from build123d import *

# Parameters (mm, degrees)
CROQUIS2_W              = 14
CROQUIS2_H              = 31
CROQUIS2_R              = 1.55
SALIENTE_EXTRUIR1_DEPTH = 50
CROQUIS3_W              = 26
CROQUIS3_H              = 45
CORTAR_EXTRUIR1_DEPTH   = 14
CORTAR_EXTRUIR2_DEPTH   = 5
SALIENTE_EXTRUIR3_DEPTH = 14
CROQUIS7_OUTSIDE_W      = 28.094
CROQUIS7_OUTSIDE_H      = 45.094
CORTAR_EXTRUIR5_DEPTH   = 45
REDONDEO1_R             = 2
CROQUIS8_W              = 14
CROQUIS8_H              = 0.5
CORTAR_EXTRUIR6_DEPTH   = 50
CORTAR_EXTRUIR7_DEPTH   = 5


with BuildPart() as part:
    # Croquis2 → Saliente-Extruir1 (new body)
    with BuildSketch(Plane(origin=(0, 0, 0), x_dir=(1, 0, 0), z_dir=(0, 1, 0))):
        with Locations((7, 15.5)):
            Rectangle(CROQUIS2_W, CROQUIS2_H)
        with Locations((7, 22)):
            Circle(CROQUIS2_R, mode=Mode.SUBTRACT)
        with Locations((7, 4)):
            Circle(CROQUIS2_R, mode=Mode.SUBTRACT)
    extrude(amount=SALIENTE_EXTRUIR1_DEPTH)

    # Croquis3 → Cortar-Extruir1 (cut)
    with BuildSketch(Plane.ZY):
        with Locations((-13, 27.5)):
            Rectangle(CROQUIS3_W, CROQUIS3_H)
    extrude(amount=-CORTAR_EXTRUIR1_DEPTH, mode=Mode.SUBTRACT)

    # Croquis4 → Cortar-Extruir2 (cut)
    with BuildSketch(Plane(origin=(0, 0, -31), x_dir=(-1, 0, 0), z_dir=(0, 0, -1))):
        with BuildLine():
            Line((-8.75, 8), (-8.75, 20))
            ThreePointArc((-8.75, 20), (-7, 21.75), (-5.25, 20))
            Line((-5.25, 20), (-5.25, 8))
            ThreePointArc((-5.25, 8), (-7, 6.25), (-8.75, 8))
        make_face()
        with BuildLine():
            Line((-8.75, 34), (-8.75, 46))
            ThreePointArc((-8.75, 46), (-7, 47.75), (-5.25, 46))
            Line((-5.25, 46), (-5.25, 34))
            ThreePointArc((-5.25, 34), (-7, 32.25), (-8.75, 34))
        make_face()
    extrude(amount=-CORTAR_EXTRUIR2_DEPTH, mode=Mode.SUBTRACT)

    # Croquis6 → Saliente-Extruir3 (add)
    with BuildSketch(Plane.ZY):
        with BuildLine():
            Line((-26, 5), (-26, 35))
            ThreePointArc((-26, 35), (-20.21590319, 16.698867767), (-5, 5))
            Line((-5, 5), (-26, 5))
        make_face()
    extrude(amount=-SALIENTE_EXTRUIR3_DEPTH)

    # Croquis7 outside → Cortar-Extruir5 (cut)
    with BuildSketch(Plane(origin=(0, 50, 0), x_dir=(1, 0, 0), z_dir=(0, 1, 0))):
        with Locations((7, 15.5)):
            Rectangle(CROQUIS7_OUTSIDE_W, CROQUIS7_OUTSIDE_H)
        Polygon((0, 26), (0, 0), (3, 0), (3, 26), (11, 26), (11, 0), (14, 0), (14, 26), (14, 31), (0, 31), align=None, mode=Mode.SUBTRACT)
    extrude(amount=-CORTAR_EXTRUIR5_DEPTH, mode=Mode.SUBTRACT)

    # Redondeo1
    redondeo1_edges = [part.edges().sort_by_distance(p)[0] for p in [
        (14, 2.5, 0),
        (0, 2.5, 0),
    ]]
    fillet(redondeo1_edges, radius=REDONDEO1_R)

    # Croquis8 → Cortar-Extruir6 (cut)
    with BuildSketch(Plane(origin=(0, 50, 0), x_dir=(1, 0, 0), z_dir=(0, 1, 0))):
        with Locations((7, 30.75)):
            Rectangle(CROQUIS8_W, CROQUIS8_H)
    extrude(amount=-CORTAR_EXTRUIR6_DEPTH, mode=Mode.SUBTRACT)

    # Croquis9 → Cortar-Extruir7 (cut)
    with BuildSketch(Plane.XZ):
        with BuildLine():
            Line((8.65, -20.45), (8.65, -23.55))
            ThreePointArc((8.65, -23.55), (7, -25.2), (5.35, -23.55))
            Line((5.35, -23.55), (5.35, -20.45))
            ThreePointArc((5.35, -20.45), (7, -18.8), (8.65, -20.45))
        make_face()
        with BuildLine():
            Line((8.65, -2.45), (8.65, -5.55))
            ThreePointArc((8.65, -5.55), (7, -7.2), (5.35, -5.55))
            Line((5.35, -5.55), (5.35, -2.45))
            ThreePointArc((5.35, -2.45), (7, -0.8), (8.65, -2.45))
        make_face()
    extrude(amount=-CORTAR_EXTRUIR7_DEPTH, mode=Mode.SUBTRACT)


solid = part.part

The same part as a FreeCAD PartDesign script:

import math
import FreeCAD as App
import Part
import Sketcher


def edges_at(feature, points):
    """Names of the edges that pass closest to the given points."""
    edges = feature.Shape.Edges
    near = lambda p: min(range(len(edges)), key=lambda i: edges[i].distToShape(Part.Vertex(*p))[0])
    return sorted({f"Edge{near(p) + 1}" for p in points})


def add_polygon(sketch, points):
    """Adds a closed chain of lines whose ends are joined by coincident constraints."""
    first, n = sketch.GeometryCount, len(points)
    for a, b in zip(points, points[1:] + points[:1]):
        sketch.addGeometry(Part.LineSegment(App.Vector(*a, 0), App.Vector(*b, 0)), False)
    for i in range(n):
        sketch.addConstraint(Sketcher.Constraint("Coincident", first + i, 2, first + (i + 1) % n, 1))

doc = App.newDocument("Part")
body = doc.addObject("PartDesign::Body", "Body")

# Sketch on XZ plane
sketch1 = body.newObject("Sketcher::SketchObject", "Sketch")
sketch1.AttachmentSupport = (doc.getObject("XZ_Plane"), [""])
sketch1.MapMode = "FlatFace"
add_polygon(sketch1, [(0, -31), (0, 0), (14, 0), (14, -31)])  # lines 0-3
sketch1.addGeometry(Part.Circle(App.Vector(7, -4, 0), App.Vector(0, 0, 1), 1.55), False)  # 4
sketch1.addGeometry(Part.Circle(App.Vector(7, -22, 0), App.Vector(0, 0, 1), 1.55), False)  # 5
sketch1.addConstraint(Sketcher.Constraint("Vertical", 0))
sketch1.addConstraint(Sketcher.Constraint("Horizontal", 1))
sketch1.addConstraint(Sketcher.Constraint("Vertical", 2))
sketch1.addConstraint(Sketcher.Constraint("Horizontal", 3))
sketch1.addConstraint(Sketcher.Constraint("Coincident", 0, 2, -1, 1))
sketch1.addConstraint(Sketcher.Constraint("Equal", 4, 5))
sketch1.addConstraint(Sketcher.Constraint("Vertical", 4, 3, 5, 3))
sketch1.addConstraint(Sketcher.Constraint("Diameter", 4, 3.1))
sketch1.addConstraint(Sketcher.Constraint("DistanceX", 1, 1, 1, 2, 14.0))
sketch1.addConstraint(Sketcher.Constraint("DistanceY", 0, 1, 0, 2, 31.0))
sketch1.addConstraint(Sketcher.Constraint("DistanceX", -1, 1, 4, 3, 7.0))
sketch1.addConstraint(Sketcher.Constraint("DistanceY", 4, 3, -1, 1, 4.0))
sketch1.addConstraint(Sketcher.Constraint("DistanceY", 5, 3, -1, 1, 22.0))
pad1 = body.newObject("PartDesign::Pad", "Pad")
pad1.Profile = sketch1
pad1.Length = 50
pad1.Reversed = True

# Sketch on YZ plane
sketch2 = body.newObject("Sketcher::SketchObject", "Sketch001")
sketch2.AttachmentSupport = (doc.getObject("YZ_Plane"), [""])
sketch2.MapMode = "FlatFace"
add_polygon(sketch2, [(50, -26), (5, -26), (5, 0), (50, 0)])  # lines 0-3
sketch2.addConstraint(Sketcher.Constraint("Horizontal", 0))
sketch2.addConstraint(Sketcher.Constraint("Vertical", 1))
sketch2.addConstraint(Sketcher.Constraint("Horizontal", 2))
sketch2.addConstraint(Sketcher.Constraint("Vertical", 3))
sketch2.addConstraint(Sketcher.Constraint("PointOnObject", 1, 2, -1))
sketch2.addConstraint(Sketcher.Constraint("DistanceX", 0, 2, 0, 1, 45.0))
sketch2.addConstraint(Sketcher.Constraint("DistanceY", 1, 1, 1, 2, 26.0))
sketch2.addConstraint(Sketcher.Constraint("DistanceX", -1, 1, 0, 2, 5.0))
pocket1 = body.newObject("PartDesign::Pocket", "Pocket")
pocket1.Profile = sketch2
pocket1.Length = 14
pocket1.Reversed = True

# Sketch on XY plane
sketch3 = body.newObject("Sketcher::SketchObject", "Sketch002")
sketch3.AttachmentSupport = (doc.getObject("XY_Plane"), [""])
sketch3.MapMode = "FlatFace"
sketch3.AttachmentOffset = App.Placement(App.Vector(0, 0, -31), App.Rotation())
sketch3.addGeometry(Part.LineSegment(App.Vector(8.75, 20, 0), App.Vector(8.75, 8, 0)), False)
sketch3.addGeometry(Part.ArcOfCircle(Part.Circle(App.Vector(7, 8, 0), App.Vector(0, 0, 1), 1.75), math.radians(180), math.radians(360)), False)
sketch3.addGeometry(Part.LineSegment(App.Vector(5.25, 8, 0), App.Vector(5.25, 20, 0)), False)
sketch3.addGeometry(Part.ArcOfCircle(Part.Circle(App.Vector(7, 20, 0), App.Vector(0, 0, 1), 1.75), math.radians(0), math.radians(180)), False)
sketch3.addGeometry(Part.LineSegment(App.Vector(8.75, 46, 0), App.Vector(8.75, 34, 0)), False)
sketch3.addGeometry(Part.ArcOfCircle(Part.Circle(App.Vector(7, 34, 0), App.Vector(0, 0, 1), 1.75), math.radians(180), math.radians(360)), False)
sketch3.addGeometry(Part.LineSegment(App.Vector(5.25, 34, 0), App.Vector(5.25, 46, 0)), False)
sketch3.addGeometry(Part.ArcOfCircle(Part.Circle(App.Vector(7, 46, 0), App.Vector(0, 0, 1), 1.75), math.radians(0), math.radians(180)), False)
sketch3.addConstraint(Sketcher.Constraint("Tangent", 0, 2, 1, 2))
sketch3.addConstraint(Sketcher.Constraint("Tangent", 1, 1, 2, 1))
sketch3.addConstraint(Sketcher.Constraint("Tangent", 2, 2, 3, 2))
sketch3.addConstraint(Sketcher.Constraint("Tangent", 3, 1, 0, 1))
sketch3.addConstraint(Sketcher.Constraint("Tangent", 4, 2, 5, 2))
sketch3.addConstraint(Sketcher.Constraint("Tangent", 5, 1, 6, 1))
sketch3.addConstraint(Sketcher.Constraint("Tangent", 6, 2, 7, 2))
sketch3.addConstraint(Sketcher.Constraint("Tangent", 7, 1, 4, 1))
sketch3.addConstraint(Sketcher.Constraint("Vertical", 0))
sketch3.addConstraint(Sketcher.Constraint("Vertical", 2))
sketch3.addConstraint(Sketcher.Constraint("Vertical", 4))
sketch3.addConstraint(Sketcher.Constraint("Vertical", 6))
sketch3.addConstraint(Sketcher.Constraint("Equal", 3, 5))
sketch3.addConstraint(Sketcher.Constraint("Vertical", 3, 3, 5, 3))
sketch3.addConstraint(Sketcher.Constraint("Equal", 2, 4))
sketch3.addConstraint(Sketcher.Constraint("DistanceY", 0, 2, 0, 1, 12.0))
sketch3.addConstraint(Sketcher.Constraint("Radius", 1, 1.75))
sketch3.addConstraint(Sketcher.Constraint("DistanceX", -1, 1, 1, 3, 7.0))
sketch3.addConstraint(Sketcher.Constraint("DistanceY", -1, 1, 1, 3, 8.0))
sketch3.addConstraint(Sketcher.Constraint("DistanceY", -1, 1, 5, 3, 34.0))
pocket2 = body.newObject("PartDesign::Pocket", "Pocket001")
pocket2.Profile = sketch3
pocket2.Length = 5
pocket2.Reversed = True

# Sketch on YZ plane
sketch4 = body.newObject("Sketcher::SketchObject", "Sketch003")
sketch4.AttachmentSupport = (doc.getObject("YZ_Plane"), [""])
sketch4.MapMode = "FlatFace"
sketch4.addGeometry(Part.LineSegment(App.Vector(35, -26, 0), App.Vector(5, -26, 0)), False)
sketch4.addGeometry(Part.LineSegment(App.Vector(5, -26, 0), App.Vector(5, -5, 0)), False)
sketch4.addGeometry(Part.ArcOfCircle(Part.Circle(App.Vector(35.04825, 5.9975, 0), App.Vector(0, 0, 1), 31.997536), math.radians(-159.897642), math.radians(-90.086398)), False)
sketch4.addConstraint(Sketcher.Constraint("Coincident", 0, 2, 1, 1))
sketch4.addConstraint(Sketcher.Constraint("Coincident", 1, 2, 2, 1))
sketch4.addConstraint(Sketcher.Constraint("Coincident", 2, 2, 0, 1))
sketch4.addConstraint(Sketcher.Constraint("Horizontal", 0))
sketch4.addConstraint(Sketcher.Constraint("Vertical", 1))
sketch4.addConstraint(Sketcher.Constraint("DistanceX", 0, 2, 0, 1, 30.0))
sketch4.addConstraint(Sketcher.Constraint("DistanceY", 1, 1, 1, 2, 21.0))
sketch4.addConstraint(Sketcher.Constraint("DistanceX", -1, 1, 0, 2, 5.0))
sketch4.addConstraint(Sketcher.Constraint("DistanceY", 0, 2, -1, 1, 26.0))
sketch4.addConstraint(Sketcher.Constraint("Radius", 2, 31.997536))
pad2 = body.newObject("PartDesign::Pad", "Pad001")
pad2.Profile = sketch4
pad2.Length = 14

# Sketch on XZ plane
sketch5 = body.newObject("Sketcher::SketchObject", "Sketch004")
sketch5.AttachmentSupport = (doc.getObject("XZ_Plane"), [""])
sketch5.MapMode = "FlatFace"
sketch5.AttachmentOffset = App.Placement(App.Vector(0, 0, -50), App.Rotation())
add_polygon(sketch5, [(-7.047, -38.047), (-7.047, 7.047), (21.047, 7.047), (21.047, -38.047)])  # lines 0-3
add_polygon(sketch5, [(0, 0), (0, -31), (14, -31), (14, 0), (11, 0), (11, -26), (3, -26), (3, 0)])  # lines 4-11
sketch5.addConstraint(Sketcher.Constraint("Vertical", 0))
sketch5.addConstraint(Sketcher.Constraint("Horizontal", 1))
sketch5.addConstraint(Sketcher.Constraint("Vertical", 2))
sketch5.addConstraint(Sketcher.Constraint("Horizontal", 3))
sketch5.addConstraint(Sketcher.Constraint("Vertical", 4))
sketch5.addConstraint(Sketcher.Constraint("Horizontal", 5))
sketch5.addConstraint(Sketcher.Constraint("Vertical", 6))
sketch5.addConstraint(Sketcher.Constraint("Horizontal", 7))
sketch5.addConstraint(Sketcher.Constraint("Vertical", 8))
sketch5.addConstraint(Sketcher.Constraint("Horizontal", 9))
sketch5.addConstraint(Sketcher.Constraint("Vertical", 10))
sketch5.addConstraint(Sketcher.Constraint("Horizontal", 11))
sketch5.addConstraint(Sketcher.Constraint("Coincident", 11, 2, -1, 1))
sketch5.addConstraint(Sketcher.Constraint("PointOnObject", 6, 2, -1))
sketch5.addConstraint(Sketcher.Constraint("Equal", 7, 11))
sketch5.addConstraint(Sketcher.Constraint("DistanceX", 5, 1, 5, 2, 14.0))
sketch5.addConstraint(Sketcher.Constraint("DistanceX", 7, 2, 7, 1, 3.0))
sketch5.addConstraint(Sketcher.Constraint("DistanceY", 4, 2, 4, 1, 31.0))
sketch5.addConstraint(Sketcher.Constraint("DistanceY", 8, 2, 8, 1, 26.0))
sketch5.addConstraint(Sketcher.Constraint("DistanceX", 1, 1, 1, 2, 28.094))
sketch5.addConstraint(Sketcher.Constraint("DistanceY", 0, 1, 0, 2, 45.094))
sketch5.addConstraint(Sketcher.Constraint("DistanceX", 0, 2, -1, 1, 7.047))
sketch5.addConstraint(Sketcher.Constraint("DistanceY", -1, 1, 0, 2, 7.047))
pocket3 = body.newObject("PartDesign::Pocket", "Pocket002")
pocket3.Profile = sketch5
pocket3.Length = 45
pocket3.Reversed = True
doc.recompute()

fillet = body.newObject("PartDesign::Fillet", "Fillet")
fillet.Base = (pocket3, edges_at(pocket3, [(14, 2.5, 0), (0, 2.5, 0)]))
fillet.Radius = 2

# Sketch on XZ plane
sketch6 = body.newObject("Sketcher::SketchObject", "Sketch005")
sketch6.AttachmentSupport = (doc.getObject("XZ_Plane"), [""])
sketch6.MapMode = "FlatFace"
sketch6.AttachmentOffset = App.Placement(App.Vector(0, 0, -50), App.Rotation())
add_polygon(sketch6, [(0, -31), (0, -30.5), (14, -30.5), (14, -31)])  # lines 0-3
sketch6.addConstraint(Sketcher.Constraint("Vertical", 0))
sketch6.addConstraint(Sketcher.Constraint("Horizontal", 1))
sketch6.addConstraint(Sketcher.Constraint("Vertical", 2))
sketch6.addConstraint(Sketcher.Constraint("Horizontal", 3))
sketch6.addConstraint(Sketcher.Constraint("PointOnObject", 0, 2, -2))
sketch6.addConstraint(Sketcher.Constraint("DistanceX", 1, 1, 1, 2, 14.0))
sketch6.addConstraint(Sketcher.Constraint("DistanceY", 0, 1, 0, 2, 0.5))
sketch6.addConstraint(Sketcher.Constraint("DistanceY", 2, 2, -1, 1, 31.0))
pocket4 = body.newObject("PartDesign::Pocket", "Pocket003")
pocket4.Profile = sketch6
pocket4.Length = 50
pocket4.Reversed = True

# Sketch on XZ plane
sketch7 = body.newObject("Sketcher::SketchObject", "Sketch006")
sketch7.AttachmentSupport = (doc.getObject("XZ_Plane"), [""])
sketch7.MapMode = "FlatFace"
sketch7.addGeometry(Part.LineSegment(App.Vector(8.65, -23.55, 0), App.Vector(8.65, -20.45, 0)), False)
sketch7.addGeometry(Part.ArcOfCircle(Part.Circle(App.Vector(7, -20.45, 0), App.Vector(0, 0, 1), 1.65), math.radians(0), math.radians(180)), False)
sketch7.addGeometry(Part.LineSegment(App.Vector(5.35, -20.45, 0), App.Vector(5.35, -23.55, 0)), False)
sketch7.addGeometry(Part.ArcOfCircle(Part.Circle(App.Vector(7, -23.55, 0), App.Vector(0, 0, 1), 1.65), math.radians(180), math.radians(360)), False)
sketch7.addGeometry(Part.LineSegment(App.Vector(8.65, -5.55, 0), App.Vector(8.65, -2.45, 0)), False)
sketch7.addGeometry(Part.ArcOfCircle(Part.Circle(App.Vector(7, -2.45, 0), App.Vector(0, 0, 1), 1.65), math.radians(0), math.radians(180)), False)
sketch7.addGeometry(Part.LineSegment(App.Vector(5.35, -2.45, 0), App.Vector(5.35, -5.55, 0)), False)
sketch7.addGeometry(Part.ArcOfCircle(Part.Circle(App.Vector(7, -5.55, 0), App.Vector(0, 0, 1), 1.65), math.radians(180), math.radians(360)), False)
sketch7.addConstraint(Sketcher.Constraint("Tangent", 0, 2, 1, 1))
sketch7.addConstraint(Sketcher.Constraint("Tangent", 1, 2, 2, 1))
sketch7.addConstraint(Sketcher.Constraint("Tangent", 2, 2, 3, 1))
sketch7.addConstraint(Sketcher.Constraint("Tangent", 3, 2, 0, 1))
sketch7.addConstraint(Sketcher.Constraint("Tangent", 4, 2, 5, 1))
sketch7.addConstraint(Sketcher.Constraint("Tangent", 5, 2, 6, 1))
sketch7.addConstraint(Sketcher.Constraint("Tangent", 6, 2, 7, 1))
sketch7.addConstraint(Sketcher.Constraint("Tangent", 7, 2, 4, 1))
sketch7.addConstraint(Sketcher.Constraint("Vertical", 0))
sketch7.addConstraint(Sketcher.Constraint("Vertical", 2))
sketch7.addConstraint(Sketcher.Constraint("Vertical", 4))
sketch7.addConstraint(Sketcher.Constraint("Vertical", 6))
sketch7.addConstraint(Sketcher.Constraint("Equal", 3, 5))
sketch7.addConstraint(Sketcher.Constraint("Vertical", 3, 3, 5, 3))
sketch7.addConstraint(Sketcher.Constraint("Equal", 2, 4))
sketch7.addConstraint(Sketcher.Constraint("Radius", 1, 1.65))
sketch7.addConstraint(Sketcher.Constraint("DistanceY", 0, 1, 0, 2, 3.1))
sketch7.addConstraint(Sketcher.Constraint("DistanceX", -1, 1, 1, 3, 7.0))
sketch7.addConstraint(Sketcher.Constraint("DistanceY", 1, 3, 5, 3, 18.0))
sketch7.addConstraint(Sketcher.Constraint("DistanceY", 1, 3, -1, 1, 20.45))
pocket5 = body.newObject("PartDesign::Pocket", "Pocket004")
pocket5.Profile = sketch7
pocket5.Length = 5

doc.recompute()
